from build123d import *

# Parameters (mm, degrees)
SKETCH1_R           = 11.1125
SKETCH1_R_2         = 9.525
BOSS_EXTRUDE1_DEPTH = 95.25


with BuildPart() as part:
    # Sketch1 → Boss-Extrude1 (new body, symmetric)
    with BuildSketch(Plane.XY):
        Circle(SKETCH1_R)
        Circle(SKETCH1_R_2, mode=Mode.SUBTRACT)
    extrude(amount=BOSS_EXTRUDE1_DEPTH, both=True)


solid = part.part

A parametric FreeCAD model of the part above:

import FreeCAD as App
import Part
import Sketcher
Q = App.Units.Quantity

doc = App.newDocument("Part")
body = doc.addObject("PartDesign::Body", "Body")

sketch1 = body.newObject("Sketcher::SketchObject", "Sketch")
sketch1.AttachmentSupport = (doc.getObject("XY_Plane"), [""])
sketch1.MapMode = "FlatFace"
sketch1.addGeometry(Part.Circle(App.Vector(0, 0, 0), App.Vector(0, 0, 1), 11), False)
sketch1.addGeometry(Part.Circle(App.Vector(0, 0, 0), App.Vector(0, 0, 1), 10), False)
sketch1.addConstraint(Sketcher.Constraint("Coincident", 0, 3, -1, 1))
sketch1.addConstraint(Sketcher.Constraint("Coincident", 1, 3, -1, 1))
sketch1.addConstraint(Sketcher.Constraint("Diameter", 1, Q("0.75 in")))
sketch1.addConstraint(Sketcher.Constraint("Diameter", 0, Q("0.875 in")))
pad1 = body.newObject("PartDesign::Pad", "Pad")
pad1.Profile = sketch1
pad1.Length = Q("7.5 in")
pad1.Midplane = True

doc.recompute()
